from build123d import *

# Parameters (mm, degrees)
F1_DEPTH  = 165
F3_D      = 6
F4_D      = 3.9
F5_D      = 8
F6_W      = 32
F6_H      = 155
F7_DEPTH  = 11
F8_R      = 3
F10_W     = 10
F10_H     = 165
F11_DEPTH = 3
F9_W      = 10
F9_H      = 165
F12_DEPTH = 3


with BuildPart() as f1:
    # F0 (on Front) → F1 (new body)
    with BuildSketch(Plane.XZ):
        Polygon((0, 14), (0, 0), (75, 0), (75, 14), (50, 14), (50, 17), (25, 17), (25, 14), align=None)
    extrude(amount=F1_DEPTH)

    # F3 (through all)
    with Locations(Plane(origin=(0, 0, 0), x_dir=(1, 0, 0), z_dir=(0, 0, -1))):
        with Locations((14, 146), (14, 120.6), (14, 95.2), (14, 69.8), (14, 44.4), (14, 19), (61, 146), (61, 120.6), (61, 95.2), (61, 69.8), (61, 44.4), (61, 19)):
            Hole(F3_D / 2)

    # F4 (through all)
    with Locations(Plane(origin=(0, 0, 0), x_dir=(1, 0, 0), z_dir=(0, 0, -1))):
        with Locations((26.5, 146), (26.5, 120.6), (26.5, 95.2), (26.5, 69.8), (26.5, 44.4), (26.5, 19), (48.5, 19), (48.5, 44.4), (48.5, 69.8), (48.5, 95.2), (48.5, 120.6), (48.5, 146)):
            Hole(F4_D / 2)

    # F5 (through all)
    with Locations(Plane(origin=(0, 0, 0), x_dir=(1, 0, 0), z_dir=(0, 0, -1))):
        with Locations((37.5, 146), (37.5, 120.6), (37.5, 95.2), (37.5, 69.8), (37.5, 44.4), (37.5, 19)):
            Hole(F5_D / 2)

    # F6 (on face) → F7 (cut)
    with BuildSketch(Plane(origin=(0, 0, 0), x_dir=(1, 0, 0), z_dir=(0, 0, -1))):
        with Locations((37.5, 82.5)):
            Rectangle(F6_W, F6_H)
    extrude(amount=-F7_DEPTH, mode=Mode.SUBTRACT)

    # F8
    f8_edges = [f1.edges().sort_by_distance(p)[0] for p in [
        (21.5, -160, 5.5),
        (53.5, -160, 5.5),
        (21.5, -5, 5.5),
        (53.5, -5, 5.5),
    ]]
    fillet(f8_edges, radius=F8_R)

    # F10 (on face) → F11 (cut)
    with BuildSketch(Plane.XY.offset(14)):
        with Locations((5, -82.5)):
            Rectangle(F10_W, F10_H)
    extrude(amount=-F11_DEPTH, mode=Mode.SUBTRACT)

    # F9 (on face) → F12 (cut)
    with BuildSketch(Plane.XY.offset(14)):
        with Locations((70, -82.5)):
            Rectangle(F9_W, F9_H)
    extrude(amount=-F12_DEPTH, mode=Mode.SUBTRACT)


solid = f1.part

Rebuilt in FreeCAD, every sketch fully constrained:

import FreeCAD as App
import Part
import Sketcher


def edges_at(feature, points):
    """Names of the edges that pass closest to the given points."""
    edges = feature.Shape.Edges
    near = lambda p: min(range(len(edges)), key=lambda i: edges[i].distToShape(Part.Vertex(*p))[0])
    return sorted({f"Edge{near(p) + 1}" for p in points})


def add_polygon(sketch, points):
    """Adds a closed chain of lines whose ends are joined by coincident constraints."""
    first, n = sketch.GeometryCount, len(points)
    for a, b in zip(points, points[1:] + points[:1]):
        sketch.addGeometry(Part.LineSegment(App.Vector(*a, 0), App.Vector(*b, 0)), False)
    for i in range(n):
        sketch.addConstraint(Sketcher.Constraint("Coincident", first + i, 2, first + (i + 1) % n, 1))

doc = App.newDocument("Part")
params = doc.addObject("Spreadsheet::Sheet", "Params")
for row, (alias, value) in enumerate([
    ("sketch1_width", "75 mm"),
    ("sketch1_height", "14 mm"),
    ("sketch1_height2", "3 mm"),
    ("pad1_length", "165 mm"),
    ("sketch2_diameter", "6 mm"),
    ("hole_diameter", "6 mm"),
    ("sketch3_diameter", "3.9 mm"),
    ("hole2_diameter", "3.9 mm"),
    ("sketch4_diameter", "8 mm"),
    ("hole3_diameter", "8 mm"),
    ("sketch5_width", "32 mm"),
    ("sketch5_height", "155 mm"),
    ("pocket1_length", "11 mm"),
    ("fillet_radius", "3 mm"),
    ("sketch6_width", "10 mm"),
    ("sketch6_height", "165 mm"),
    ("pocket2_length", "3 mm"),
    ("sketch7_width", "10 mm"),
    ("sketch7_height", "165 mm"),
    ("pocket3_length", "3 mm"),
], start=1):
    params.set(f"A{row}", alias)
    params.set(f"B{row}", "=" + value)
    params.setAlias(f"B{row}", alias)

body = doc.addObject("PartDesign::Body", "Body")

# Sketch on XZ plane
sketch1 = body.newObject("Sketcher::SketchObject", "Sketch")
sketch1.AttachmentSupport = (doc.getObject("XZ_Plane"), [""])
sketch1.MapMode = "FlatFace"
add_polygon(sketch1, [(0, 14), (0, 0), (75, 0), (75, 14), (50, 14), (50, 17), (25, 17), (25, 14)])  # lines 0-7
sketch1.addConstraint(Sketcher.Constraint("Vertical", 0))
sketch1.addConstraint(Sketcher.Constraint("Horizontal", 1))
sketch1.addConstraint(Sketcher.Constraint("Vertical", 2))
sketch1.addConstraint(Sketcher.Constraint("Horizontal", 3))
sketch1.addConstraint(Sketcher.Constraint("Vertical", 4))
sketch1.addConstraint(Sketcher.Constraint("Horizontal", 5))
sketch1.addConstraint(Sketcher.Constraint("Vertical", 6))
sketch1.addConstraint(Sketcher.Constraint("Horizontal", 7))
sketch1.addConstraint(Sketcher.Constraint("Coincident", 0, 2, -1, 1))
sketch1.addConstraint(Sketcher.Constraint("Horizontal", 3, 2, 6, 2))
sketch1.addConstraint(Sketcher.Constraint("Equal", 3, 5))
sketch1.addConstraint(Sketcher.Constraint("Equal", 5, 7))
sketch1.addConstraint(Sketcher.Constraint("DistanceX", 1, 1, 1, 2, 75.0))
sketch1.addConstraint(Sketcher.Constraint("DistanceY", 0, 2, 0, 1, 14.0))
sketch1.addConstraint(Sketcher.Constraint("DistanceY", 4, 1, 4, 2, 3.0))
sketch1.setExpression("Constraints[20]", "Params.sketch1_width")
sketch1.setExpression("Constraints[21]", "Params.sketch1_height")
sketch1.setExpression("Constraints[22]", "Params.sketch1_height2")
pad1 = body.newObject("PartDesign::Pad", "Pad")
pad1.Profile = sketch1
pad1.setExpression("Length", "Params.pad1_length")

# Sketch on XY plane
sketch2 = body.newObject("Sketcher::SketchObject", "Sketch001")
sketch2.AttachmentSupport = (doc.getObject("XY_Plane"), [""])
sketch2.MapMode = "FlatFace"
sketch2.addGeometry(Part.Circle(App.Vector(14, -146, 0), App.Vector(0, 0, 1), 3), False)
sketch2.addGeometry(Part.Circle(App.Vector(14, -120.6, 0), App.Vector(0, 0, 1), 3), False)
sketch2.addGeometry(Part.Circle(App.Vector(14, -95.2, 0), App.Vector(0, 0, 1), 3), False)
sketch2.addGeometry(Part.Circle(App.Vector(14, -69.8, 0), App.Vector(0, 0, 1), 3), False)
sketch2.addGeometry(Part.Circle(App.Vector(14, -44.4, 0), App.Vector(0, 0, 1), 3), False)
sketch2.addGeometry(Part.Circle(App.Vector(14, -19, 0), App.Vector(0, 0, 1), 3), False)
sketch2.addGeometry(Part.Circle(App.Vector(61, -146, 0), App.Vector(0, 0, 1), 3), False)
sketch2.addGeometry(Part.Circle(App.Vector(61, -120.6, 0), App.Vector(0, 0, 1), 3), False)
sketch2.addGeometry(Part.Circle(App.Vector(61, -95.2, 0), App.Vector(0, 0, 1), 3), False)
sketch2.addGeometry(Part.Circle(App.Vector(61, -69.8, 0), App.Vector(0, 0, 1), 3), False)
sketch2.addGeometry(Part.Circle(App.Vector(61, -44.4, 0), App.Vector(0, 0, 1), 3), False)
sketch2.addGeometry(Part.Circle(App.Vector(61, -19, 0), App.Vector(0, 0, 1), 3), False)
sketch2.addConstraint(Sketcher.Constraint("Equal", 0, 1))
sketch2.addConstraint(Sketcher.Constraint("Equal", 1, 2))
sketch2.addConstraint(Sketcher.Constraint("Equal", 2, 3))
sketch2.addConstraint(Sketcher.Constraint("Equal", 3, 4))
sketch2.addConstraint(Sketcher.Constraint("Equal", 4, 5))
sketch2.addConstraint(Sketcher.Constraint("Equal", 5, 6))
sketch2.addConstraint(Sketcher.Constraint("Equal", 6, 7))
sketch2.addConstraint(Sketcher.Constraint("Equal", 7, 8))
sketch2.addConstraint(Sketcher.Constraint("Equal", 8, 9))
sketch2.addConstraint(Sketcher.Constraint("Equal", 9, 10))
sketch2.addConstraint(Sketcher.Constraint("Equal", 10, 11))
sketch2.addConstraint(Sketcher.Constraint("Horizontal", 0, 3, 6, 3))
sketch2.addConstraint(Sketcher.Constraint("Horizontal", 1, 3, 7, 3))
sketch2.addConstraint(Sketcher.Constraint("Horizontal", 2, 3, 8, 3))
sketch2.addConstraint(Sketcher.Constraint("Horizontal", 3, 3, 9, 3))
sketch2.addConstraint(Sketcher.Constraint("Horizontal", 4, 3, 10, 3))
sketch2.addConstraint(Sketcher.Constraint("Horizontal", 5, 3, 11, 3))
sketch2.addConstraint(Sketcher.Constraint("Vertical", 0, 3, 1, 3))
sketch2.addConstraint(Sketcher.Constraint("Vertical", 1, 3, 2, 3))
sketch2.addConstraint(Sketcher.Constraint("Vertical", 2, 3, 3, 3))
sketch2.addConstraint(Sketcher.Constraint("Vertical", 3, 3, 4, 3))
sketch2.addConstraint(Sketcher.Constraint("Vertical", 4, 3, 5, 3))
sketch2.addConstraint(Sketcher.Constraint("Vertical", 6, 3, 7, 3))
sketch2.addConstraint(Sketcher.Constraint("Vertical", 7, 3, 8, 3))
sketch2.addConstraint(Sketcher.Constraint("Vertical", 8, 3, 9, 3))
sketch2.addConstraint(Sketcher.Constraint("Vertical", 9, 3, 10, 3))
sketch2.addConstraint(Sketcher.Constraint("Vertical", 10, 3, 11, 3))
sketch2.addConstraint(Sketcher.Constraint("Diameter", 0, 6.0))
sketch2.addConstraint(Sketcher.Constraint("DistanceX", -1, 1, 0, 3, 14.0))
sketch2.addConstraint(Sketcher.Constraint("DistanceY", 0, 3, -1, 1, 146.0))
sketch2.addConstraint(Sketcher.Constraint("DistanceY", 5, 3, -1, 1, 19.0))
sketch2.addConstraint(Sketcher.Constraint("DistanceX", -1, 1, 6, 3, 61.0))
sketch2.addConstraint(Sketcher.Constraint("DistanceY", 1, 3, -1, 1, 120.6))
sketch2.addConstraint(Sketcher.Constraint("DistanceY", 2, 3, -1, 1, 95.2))
sketch2.addConstraint(Sketcher.Constraint("DistanceY", 3, 3, -1, 1, 69.8))
sketch2.addConstraint(Sketcher.Constraint("DistanceY", 4, 3, -1, 1, 44.4))
sketch2.setExpression("Constraints[27]", "Params.sketch2_diameter")
doc.recompute()
hole = body.newObject("PartDesign::Hole", "Hole")
hole.Profile = sketch2
hole.ThreadType = "None"
hole.setExpression("Diameter", "Params.hole_diameter")
hole.DepthType = "ThroughAll"
hole.Reversed = True

# Sketch on XY plane
sketch3 = body.newObject("Sketcher::SketchObject", "Sketch002")
sketch3.AttachmentSupport = (doc.getObject("XY_Plane"), [""])
sketch3.MapMode = "FlatFace"
sketch3.addGeometry(Part.Circle(App.Vector(26.5, -146, 0), App.Vector(0, 0, 1), 1.95), False)
sketch3.addGeometry(Part.Circle(App.Vector(26.5, -120.6, 0), App.Vector(0, 0, 1), 1.95), False)
sketch3.addGeometry(Part.Circle(App.Vector(26.5, -95.2, 0), App.Vector(0, 0, 1), 1.95), False)
sketch3.addGeometry(Part.Circle(App.Vector(26.5, -69.8, 0), App.Vector(0, 0, 1), 1.95), False)
sketch3.addGeometry(Part.Circle(App.Vector(26.5, -44.4, 0), App.Vector(0, 0, 1), 1.95), False)
sketch3.addGeometry(Part.Circle(App.Vector(26.5, -19, 0), App.Vector(0, 0, 1), 1.95), False)
sketch3.addGeometry(Part.Circle(App.Vector(48.5, -19, 0), App.Vector(0, 0, 1), 1.95), False)
sketch3.addGeometry(Part.Circle(App.Vector(48.5, -44.4, 0), App.Vector(0, 0, 1), 1.95), False)
sketch3.addGeometry(Part.Circle(App.Vector(48.5, -69.8, 0), App.Vector(0, 0, 1), 1.95), False)
sketch3.addGeometry(Part.Circle(App.Vector(48.5, -95.2, 0), App.Vector(0, 0, 1), 1.95), False)
sketch3.addGeometry(Part.Circle(App.Vector(48.5, -120.6, 0), App.Vector(0, 0, 1), 1.95), False)
sketch3.addGeometry(Part.Circle(App.Vector(48.5, -146, 0), App.Vector(0, 0, 1), 1.95), False)
sketch3.addConstraint(Sketcher.Constraint("Equal", 0, 1))
sketch3.addConstraint(Sketcher.Constraint("Equal", 1, 2))
sketch3.addConstraint(Sketcher.Constraint("Equal", 2, 3))
sketch3.addConstraint(Sketcher.Constraint("Equal", 3, 4))
sketch3.addConstraint(Sketcher.Constraint("Equal", 4, 5))
sketch3.addConstraint(Sketcher.Constraint("Equal", 5, 6))
sketch3.addConstraint(Sketcher.Constraint("Equal", 6, 7))
sketch3.addConstraint(Sketcher.Constraint("Equal", 7, 8))
sketch3.addConstraint(Sketcher.Constraint("Equal", 8, 9))
sketch3.addConstraint(Sketcher.Constraint("Equal", 9, 10))
sketch3.addConstraint(Sketcher.Constraint("Equal", 10, 11))
sketch3.addConstraint(Sketcher.Constraint("Horizontal", 5, 3, 6, 3))
sketch3.addConstraint(Sketcher.Constraint("Horizontal", 4, 3, 7, 3))
sketch3.addConstraint(Sketcher.Constraint("Horizontal", 3, 3, 8, 3))
sketch3.addConstraint(Sketcher.Constraint("Horizontal", 2, 3, 9, 3))
sketch3.addConstraint(Sketcher.Constraint("Horizontal", 1, 3, 10, 3))
sketch3.addConstraint(Sketcher.Constraint("Horizontal", 0, 3, 11, 3))
sketch3.addConstraint(Sketcher.Constraint("Vertical", 0, 3, 1, 3))
sketch3.addConstraint(Sketcher.Constraint("Vertical", 1, 3, 2, 3))
sketch3.addConstraint(Sketcher.Constraint("Vertical", 2, 3, 3, 3))
sketch3.addConstraint(Sketcher.Constraint("Vertical", 3, 3, 4, 3))
sketch3.addConstraint(Sketcher.Constraint("Vertical", 4, 3, 5, 3))
sketch3.addConstraint(Sketcher.Constraint("Vertical", 6, 3, 7, 3))
sketch3.addConstraint(Sketcher.Constraint("Vertical", 7, 3, 8, 3))
sketch3.addConstraint(Sketcher.Constraint("Vertical", 8, 3, 9, 3))
sketch3.addConstraint(Sketcher.Constraint("Vertical", 9, 3, 10, 3))
sketch3.addConstraint(Sketcher.Constraint("Vertical", 10, 3, 11, 3))
sketch3.addConstraint(Sketcher.Constraint("Diameter", 0, 3.9))
sketch3.addConstraint(Sketcher.Constraint("DistanceY", 0, 3, -1, 1, 146.0))
sketch3.addConstraint(Sketcher.Constraint("DistanceY", 5, 3, -1, 1, 19.0))
sketch3.addConstraint(Sketcher.Constraint("DistanceX", 5, 3, 6, 3, 22.0))
sketch3.addConstraint(Sketcher.Constraint("DistanceX", -1, 1, 0, 3, 26.5))
sketch3.addConstraint(Sketcher.Constraint("DistanceY", 1, 3, -1, 1, 120.6))
sketch3.addConstraint(Sketcher.Constraint("DistanceY", 2, 3, -1, 1, 95.2))
sketch3.addConstraint(Sketcher.Constraint("DistanceY", 3, 3, -1, 1, 69.8))
sketch3.addConstraint(Sketcher.Constraint("DistanceY", 4, 3, -1, 1, 44.4))
sketch3.setExpression("Constraints[27]", "Params.sketch3_diameter")
doc.recompute()
hole2 = body.newObject("PartDesign::Hole", "Hole001")
hole2.Profile = sketch3
hole2.ThreadType = "None"
hole2.setExpression("Diameter", "Params.hole2_diameter")
hole2.DepthType = "ThroughAll"
hole2.Reversed = True

# Sketch on XY plane
sketch4 = body.newObject("Sketcher::SketchObject", "Sketch003")
sketch4.AttachmentSupport = (doc.getObject("XY_Plane"), [""])
sketch4.MapMode = "FlatFace"
sketch4.addGeometry(Part.Circle(App.Vector(37.5, -146, 0), App.Vector(0, 0, 1), 4), False)
sketch4.addGeometry(Part.Circle(App.Vector(37.5, -120.6, 0), App.Vector(0, 0, 1), 4), False)
sketch4.addGeometry(Part.Circle(App.Vector(37.5, -95.2, 0), App.Vector(0, 0, 1), 4), False)
sketch4.addGeometry(Part.Circle(App.Vector(37.5, -69.8, 0), App.Vector(0, 0, 1), 4), False)
sketch4.addGeometry(Part.Circle(App.Vector(37.5, -44.4, 0), App.Vector(0, 0, 1), 4), False)
sketch4.addGeometry(Part.Circle(App.Vector(37.5, -19, 0), App.Vector(0, 0, 1), 4), False)
sketch4.addConstraint(Sketcher.Constraint("Equal", 0, 1))
sketch4.addConstraint(Sketcher.Constraint("Equal", 1, 2))
sketch4.addConstraint(Sketcher.Constraint("Equal", 2, 3))
sketch4.addConstraint(Sketcher.Constraint("Equal", 3, 4))
sketch4.addConstraint(Sketcher.Constraint("Equal", 4, 5))
sketch4.addConstraint(Sketcher.Constraint("Vertical", 0, 3, 1, 3))
sketch4.addConstraint(Sketcher.Constraint("Vertical", 1, 3, 2, 3))
sketch4.addConstraint(Sketcher.Constraint("Vertical", 2, 3, 3, 3))
sketch4.addConstraint(Sketcher.Constraint("Vertical", 3, 3, 4, 3))
sketch4.addConstraint(Sketcher.Constraint("Vertical", 4, 3, 5, 3))
sketch4.addConstraint(Sketcher.Constraint("Diameter", 0, 8.0))
sketch4.addConstraint(Sketcher.Constraint("DistanceY", 0, 3, -1, 1, 146.0))
sketch4.addConstraint(Sketcher.Constraint("DistanceY", 5, 3, -1, 1, 19.0))
sketch4.addConstraint(Sketcher.Constraint("DistanceX", -1, 1, 0, 3, 37.5))
sketch4.addConstraint(Sketcher.Constraint("DistanceY", 1, 3, -1, 1, 120.6))
sketch4.addConstraint(Sketcher.Constraint("DistanceY", 2, 3, -1, 1, 95.2))
sketch4.addConstraint(Sketcher.Constraint("DistanceY", 3, 3, -1, 1, 69.8))
sketch4.addConstraint(Sketcher.Constraint("DistanceY", 4, 3, -1, 1, 44.4))
sketch4.setExpression("Constraints[10]", "Params.sketch4_diameter")
doc.recompute()
hole3 = body.newObject("PartDesign::Hole", "Hole002")
hole3.Profile = sketch4
hole3.ThreadType = "None"
hole3.setExpression("Diameter", "Params.hole3_diameter")
hole3.DepthType = "ThroughAll"
hole3.Reversed = True

# Sketch on XY plane
sketch5 = body.newObject("Sketcher::SketchObject", "Sketch004")
sketch5.AttachmentSupport = (doc.getObject("XY_Plane"), [""])
sketch5.MapMode = "FlatFace"
add_polygon(sketch5, [(21.5, -160), (21.5, -5), (53.5, -5), (53.5, -160)])  # lines 0-3
sketch5.addConstraint(Sketcher.Constraint("Vertical", 0))
sketch5.addConstraint(Sketcher.Constraint("Horizontal", 1))
sketch5.addConstraint(Sketcher.Constraint("Vertical", 2))
sketch5.addConstraint(Sketcher.Constraint("Horizontal", 3))
sketch5.addConstraint(Sketcher.Constraint("DistanceX", 1, 1, 1, 2, 32.0))
sketch5.addConstraint(Sketcher.Constraint("DistanceY", 0, 1, 0, 2, 155.0))
sketch5.addConstraint(Sketcher.Constraint("DistanceY", 0, 2, -1, 1, 5.0))
sketch5.addConstraint(Sketcher.Constraint("DistanceX", -1, 1, 0, 2, 21.5))
sketch5.setExpression("Constraints[8]", "Params.sketch5_width")
sketch5.setExpression("Constraints[9]", "Params.sketch5_height")
pocket1 = body.newObject("PartDesign::Pocket", "Pocket")
pocket1.Profile = sketch5
pocket1.setExpression("Length", "Params.pocket1_length")
pocket1.Reversed = True
doc.recompute()

fillet = body.newObject("PartDesign::Fillet", "Fillet")
fillet.Base = (pocket1, edges_at(pocket1, [
    (21.5, -160, 5.5),
    (53.5, -160, 5.5),
    (21.5, -5, 5.5),
    (53.5, -5, 5.5),
]))
fillet.setExpression("Radius", "Params.fillet_radius")

# Sketch on XY plane
sketch6 = body.newObject("Sketcher::SketchObject", "Sketch005")
sketch6.AttachmentSupport = (doc.getObject("XY_Plane"), [""])
sketch6.MapMode = "FlatFace"
sketch6.AttachmentOffset = App.Placement(App.Vector(0, 0, 14), App.Rotation())
add_polygon(sketch6, [(0, 0), (0, -165), (10, -165), (10, 0)])  # lines 0-3
sketch6.addConstraint(Sketcher.Constraint("Vertical", 0))
sketch6.addConstraint(Sketcher.Constraint("Horizontal", 1))
sketch6.addConstraint(Sketcher.Constraint("Vertical", 2))
sketch6.addConstraint(Sketcher.Constraint("Horizontal", 3))
sketch6.addConstraint(Sketcher.Constraint("Coincident", 3, 2, -1, 1))
sketch6.addConstraint(Sketcher.Constraint("DistanceX", 1, 1, 1, 2, 10.0))
sketch6.addConstraint(Sketcher.Constraint("DistanceY", 0, 2, 0, 1, 165.0))
sketch6.setExpression("Constraints[9]", "Params.sketch6_width")
sketch6.setExpression("Constraints[10]", "Params.sketch6_height")
pocket2 = body.newObject("PartDesign::Pocket", "Pocket001")
pocket2.Profile = sketch6
pocket2.setExpression("Length", "Params.pocket2_length")

# Sketch on XY plane
sketch7 = body.newObject("Sketcher::SketchObject", "Sketch006")
sketch7.AttachmentSupport = (doc.getObject("XY_Plane"), [""])
sketch7.MapMode = "FlatFace"
sketch7.AttachmentOffset = App.Placement(App.Vector(0, 0, 14), App.Rotation())
add_polygon(sketch7, [(65, 0), (65, -165), (75, -165), (75, 0)])  # lines 0-3
sketch7.addConstraint(Sketcher.Constraint("Vertical", 0))
sketch7.addConstraint(Sketcher.Constraint("Horizontal", 1))
sketch7.addConstraint(Sketcher.Constraint("Vertical", 2))
sketch7.addConstraint(Sketcher.Constraint("Horizontal", 3))
sketch7.addConstraint(Sketcher.Constraint("PointOnObject", 2, 2, -1))
sketch7.addConstraint(Sketcher.Constraint("DistanceX", 1, 1, 1, 2, 10.0))
sketch7.addConstraint(Sketcher.Constraint("DistanceY", 0, 2, 0, 1, 165.0))
sketch7.addConstraint(Sketcher.Constraint("DistanceX", -1, 1, 0, 2, 65.0))
sketch7.setExpression("Constraints[9]", "Params.sketch7_width")
sketch7.setExpression("Constraints[10]", "Params.sketch7_height")
pocket3 = body.newObject("PartDesign::Pocket", "Pocket002")
pocket3.Profile = sketch7
pocket3.setExpression("Length", "Params.pocket3_length")

doc.recompute()
